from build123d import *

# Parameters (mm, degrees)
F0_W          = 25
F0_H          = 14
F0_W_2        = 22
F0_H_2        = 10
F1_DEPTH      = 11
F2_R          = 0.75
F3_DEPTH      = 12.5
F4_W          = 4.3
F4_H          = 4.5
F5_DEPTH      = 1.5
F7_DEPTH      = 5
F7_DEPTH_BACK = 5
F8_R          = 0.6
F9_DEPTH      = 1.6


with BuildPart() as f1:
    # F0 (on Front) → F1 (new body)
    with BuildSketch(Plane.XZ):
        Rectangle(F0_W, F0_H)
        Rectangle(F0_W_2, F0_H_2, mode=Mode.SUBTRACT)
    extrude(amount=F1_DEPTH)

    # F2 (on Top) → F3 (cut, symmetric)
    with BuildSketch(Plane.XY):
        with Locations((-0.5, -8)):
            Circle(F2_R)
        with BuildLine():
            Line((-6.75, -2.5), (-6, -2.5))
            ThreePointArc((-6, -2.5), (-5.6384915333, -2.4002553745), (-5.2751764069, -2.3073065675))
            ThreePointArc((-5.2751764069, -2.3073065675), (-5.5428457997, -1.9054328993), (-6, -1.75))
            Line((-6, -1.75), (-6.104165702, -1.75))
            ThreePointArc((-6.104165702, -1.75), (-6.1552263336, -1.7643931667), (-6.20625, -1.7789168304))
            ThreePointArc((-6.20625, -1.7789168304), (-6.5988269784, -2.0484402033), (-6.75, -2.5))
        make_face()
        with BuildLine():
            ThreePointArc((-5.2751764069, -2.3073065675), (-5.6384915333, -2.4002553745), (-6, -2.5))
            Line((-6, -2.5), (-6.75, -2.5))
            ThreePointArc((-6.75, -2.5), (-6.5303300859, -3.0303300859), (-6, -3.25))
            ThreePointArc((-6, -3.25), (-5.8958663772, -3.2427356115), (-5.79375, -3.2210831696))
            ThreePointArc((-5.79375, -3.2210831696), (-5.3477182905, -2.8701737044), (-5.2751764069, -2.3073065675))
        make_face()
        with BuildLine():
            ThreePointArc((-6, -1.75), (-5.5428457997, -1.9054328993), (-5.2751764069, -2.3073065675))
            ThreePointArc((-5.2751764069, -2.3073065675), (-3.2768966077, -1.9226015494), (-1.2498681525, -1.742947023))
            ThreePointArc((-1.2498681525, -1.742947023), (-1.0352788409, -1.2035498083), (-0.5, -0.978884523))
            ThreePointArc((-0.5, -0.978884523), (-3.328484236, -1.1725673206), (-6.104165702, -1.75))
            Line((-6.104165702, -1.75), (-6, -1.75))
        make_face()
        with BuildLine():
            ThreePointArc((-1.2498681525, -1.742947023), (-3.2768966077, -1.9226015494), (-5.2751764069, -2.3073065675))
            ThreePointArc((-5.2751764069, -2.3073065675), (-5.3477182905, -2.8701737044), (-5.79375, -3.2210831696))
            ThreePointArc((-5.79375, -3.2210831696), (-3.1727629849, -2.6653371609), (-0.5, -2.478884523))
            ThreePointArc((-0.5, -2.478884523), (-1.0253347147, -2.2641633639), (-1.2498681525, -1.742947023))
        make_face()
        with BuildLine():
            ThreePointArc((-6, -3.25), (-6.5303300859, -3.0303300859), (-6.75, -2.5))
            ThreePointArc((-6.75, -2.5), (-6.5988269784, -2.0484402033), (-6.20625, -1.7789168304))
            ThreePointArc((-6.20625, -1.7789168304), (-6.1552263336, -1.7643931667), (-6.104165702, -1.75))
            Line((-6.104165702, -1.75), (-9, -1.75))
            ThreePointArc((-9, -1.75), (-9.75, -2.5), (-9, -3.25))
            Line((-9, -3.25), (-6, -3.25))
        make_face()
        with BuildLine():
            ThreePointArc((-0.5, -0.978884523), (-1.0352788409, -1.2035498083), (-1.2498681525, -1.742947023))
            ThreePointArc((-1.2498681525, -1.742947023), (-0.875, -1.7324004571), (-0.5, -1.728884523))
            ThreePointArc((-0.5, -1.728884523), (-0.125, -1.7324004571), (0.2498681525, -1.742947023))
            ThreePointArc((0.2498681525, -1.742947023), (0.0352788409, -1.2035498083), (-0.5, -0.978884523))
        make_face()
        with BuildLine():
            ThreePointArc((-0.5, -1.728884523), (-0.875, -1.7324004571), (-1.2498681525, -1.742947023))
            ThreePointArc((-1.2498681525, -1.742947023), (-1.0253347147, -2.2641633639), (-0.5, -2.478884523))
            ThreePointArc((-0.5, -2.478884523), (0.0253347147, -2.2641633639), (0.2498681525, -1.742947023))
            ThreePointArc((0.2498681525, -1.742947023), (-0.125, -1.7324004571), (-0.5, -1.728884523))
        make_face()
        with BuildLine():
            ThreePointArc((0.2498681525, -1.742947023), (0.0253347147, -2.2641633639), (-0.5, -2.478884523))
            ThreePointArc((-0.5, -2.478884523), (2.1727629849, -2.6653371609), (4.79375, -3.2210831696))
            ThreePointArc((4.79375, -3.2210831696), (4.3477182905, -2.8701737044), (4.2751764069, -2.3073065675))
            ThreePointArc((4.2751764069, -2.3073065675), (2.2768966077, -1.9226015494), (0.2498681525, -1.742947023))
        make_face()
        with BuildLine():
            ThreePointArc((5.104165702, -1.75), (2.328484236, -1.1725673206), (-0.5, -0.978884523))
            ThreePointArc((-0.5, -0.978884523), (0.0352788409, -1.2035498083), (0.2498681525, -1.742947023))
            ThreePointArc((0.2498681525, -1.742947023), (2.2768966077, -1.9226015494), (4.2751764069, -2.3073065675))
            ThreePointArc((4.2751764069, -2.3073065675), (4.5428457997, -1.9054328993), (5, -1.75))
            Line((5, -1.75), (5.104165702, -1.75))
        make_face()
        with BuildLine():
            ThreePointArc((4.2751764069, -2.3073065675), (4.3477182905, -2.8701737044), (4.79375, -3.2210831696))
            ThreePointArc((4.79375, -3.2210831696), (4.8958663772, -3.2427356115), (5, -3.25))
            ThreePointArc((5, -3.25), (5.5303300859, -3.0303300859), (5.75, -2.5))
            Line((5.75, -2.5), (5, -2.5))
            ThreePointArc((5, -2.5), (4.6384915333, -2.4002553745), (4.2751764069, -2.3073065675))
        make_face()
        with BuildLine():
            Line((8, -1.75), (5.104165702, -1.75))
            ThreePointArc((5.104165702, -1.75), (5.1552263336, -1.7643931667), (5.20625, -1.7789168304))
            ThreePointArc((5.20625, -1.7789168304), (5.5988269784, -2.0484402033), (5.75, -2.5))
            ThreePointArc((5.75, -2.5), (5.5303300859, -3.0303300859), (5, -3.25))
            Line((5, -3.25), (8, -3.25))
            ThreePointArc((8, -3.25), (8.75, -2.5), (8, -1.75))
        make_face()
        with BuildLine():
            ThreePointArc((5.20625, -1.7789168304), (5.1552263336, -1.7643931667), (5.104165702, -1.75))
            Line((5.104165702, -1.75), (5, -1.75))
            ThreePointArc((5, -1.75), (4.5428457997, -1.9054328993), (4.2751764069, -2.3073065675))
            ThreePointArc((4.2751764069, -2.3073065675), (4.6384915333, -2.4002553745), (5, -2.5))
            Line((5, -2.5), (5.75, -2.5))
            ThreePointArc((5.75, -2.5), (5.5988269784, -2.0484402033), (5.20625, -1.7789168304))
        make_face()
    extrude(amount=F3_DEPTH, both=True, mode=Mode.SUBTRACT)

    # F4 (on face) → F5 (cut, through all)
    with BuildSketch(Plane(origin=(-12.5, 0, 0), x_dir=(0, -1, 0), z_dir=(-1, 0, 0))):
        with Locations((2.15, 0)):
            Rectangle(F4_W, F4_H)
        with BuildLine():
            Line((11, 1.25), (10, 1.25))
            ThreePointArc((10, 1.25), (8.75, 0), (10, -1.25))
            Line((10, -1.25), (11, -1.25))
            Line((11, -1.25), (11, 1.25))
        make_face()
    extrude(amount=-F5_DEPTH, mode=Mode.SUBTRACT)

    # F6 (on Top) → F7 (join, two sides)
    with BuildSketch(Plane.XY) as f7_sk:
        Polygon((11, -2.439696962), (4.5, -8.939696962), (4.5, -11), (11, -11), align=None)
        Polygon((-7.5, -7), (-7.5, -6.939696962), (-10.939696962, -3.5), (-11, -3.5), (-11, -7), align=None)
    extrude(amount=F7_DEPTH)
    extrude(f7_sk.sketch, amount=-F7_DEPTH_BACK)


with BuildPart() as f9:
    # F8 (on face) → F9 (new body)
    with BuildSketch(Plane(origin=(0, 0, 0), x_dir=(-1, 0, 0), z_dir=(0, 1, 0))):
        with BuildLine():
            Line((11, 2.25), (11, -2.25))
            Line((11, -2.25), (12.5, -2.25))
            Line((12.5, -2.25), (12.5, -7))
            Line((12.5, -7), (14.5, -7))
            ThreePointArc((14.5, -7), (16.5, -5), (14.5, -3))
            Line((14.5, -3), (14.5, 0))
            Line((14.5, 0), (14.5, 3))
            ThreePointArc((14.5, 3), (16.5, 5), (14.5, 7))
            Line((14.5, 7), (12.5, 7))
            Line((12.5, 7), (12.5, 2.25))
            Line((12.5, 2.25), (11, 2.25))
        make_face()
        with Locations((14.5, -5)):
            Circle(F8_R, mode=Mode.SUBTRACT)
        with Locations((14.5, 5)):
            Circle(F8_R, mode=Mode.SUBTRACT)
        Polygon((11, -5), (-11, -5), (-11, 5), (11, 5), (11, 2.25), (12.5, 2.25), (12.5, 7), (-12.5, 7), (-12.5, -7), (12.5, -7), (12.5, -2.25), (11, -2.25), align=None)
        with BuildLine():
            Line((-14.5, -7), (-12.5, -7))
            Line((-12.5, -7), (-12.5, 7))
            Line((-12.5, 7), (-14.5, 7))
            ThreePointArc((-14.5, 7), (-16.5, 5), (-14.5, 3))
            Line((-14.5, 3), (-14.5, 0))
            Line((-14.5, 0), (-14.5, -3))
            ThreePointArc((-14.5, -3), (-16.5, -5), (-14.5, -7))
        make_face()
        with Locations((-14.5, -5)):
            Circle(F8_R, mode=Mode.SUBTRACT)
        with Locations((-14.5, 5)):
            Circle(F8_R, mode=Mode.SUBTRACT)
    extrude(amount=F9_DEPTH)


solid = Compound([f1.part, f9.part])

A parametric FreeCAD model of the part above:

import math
import FreeCAD as App
import Part
import Sketcher

V = App.Vector


def add_polygon(sketch, points):
    """Adds a closed chain of lines whose ends are joined by coincident constraints."""
    first, n = sketch.GeometryCount, len(points)
    for a, b in zip(points, points[1:] + points[:1]):
        sketch.addGeometry(Part.LineSegment(App.Vector(*a, 0), App.Vector(*b, 0)), False)
    for i in range(n):
        sketch.addConstraint(Sketcher.Constraint("Coincident", first + i, 2, first + (i + 1) % n, 1))

doc = App.newDocument("Part")
body = doc.addObject("PartDesign::Body", "Body")

# Sketch on XZ plane
sketch1 = body.newObject("Sketcher::SketchObject", "Sketch")
sketch1.AttachmentSupport = (doc.getObject("XZ_Plane"), [""])
sketch1.MapMode = "FlatFace"
add_polygon(sketch1, [(-12.5, 7), (-12.5, -7), (12.5, -7), (12.5, 7)])  # lines 0-3
add_polygon(sketch1, [(11, -5), (-11, -5), (-11, 5), (11, 5)])  # lines 4-7
sketch1.addConstraint([
    Sketcher.Constraint("Vertical", 0),
    Sketcher.Constraint("Horizontal", 1),
    Sketcher.Constraint("Vertical", 2),
    Sketcher.Constraint("Horizontal", 3),
    Sketcher.Constraint("Horizontal", 4),
    Sketcher.Constraint("Vertical", 5),
    Sketcher.Constraint("Horizontal", 6),
    Sketcher.Constraint("Vertical", 7),
    Sketcher.Constraint("Symmetric", 0, 2, 2, 2, -1, 1),
    Sketcher.Constraint("Symmetric", 4, 2, 6, 2, -1, 1),
    Sketcher.Constraint("DistanceX", 1, 1, 1, 2, 25.0),
    Sketcher.Constraint("DistanceX", 4, 2, 4, 1, 22.0),
    Sketcher.Constraint("DistanceY", 0, 2, 0, 1, 14.0),
    Sketcher.Constraint("DistanceY", 5, 1, 5, 2, 10.0),
])
pad1 = body.newObject("PartDesign::Pad", "Pad")
pad1.Profile = sketch1
pad1.Length = 11

# Sketch on XY plane
sketch2 = body.newObject("Sketcher::SketchObject", "Sketch001")
sketch2.AttachmentSupport = (doc.getObject("XY_Plane"), [""])
sketch2.MapMode = "FlatFace"
sketch2.addGeometry([
    Part.Circle(V(-0.5, -8, 0), V(0, 0, 1), 0.75),  # 0
    Part.LineSegment(V(8, -1.75, 0), V(5.104166, -1.75, 0)),  # 1
    Part.ArcOfCircle(Part.Circle(V(-0.5, -21.728885, 0), V(0, 0, 1), 20.75), math.radians(74.330956), math.radians(90)),  # 2
    Part.ArcOfCircle(Part.Circle(V(-0.5, -21.728885, 0), V(0, 0, 1), 20.75), math.radians(90), math.radians(105.669044)),  # 3
    Part.LineSegment(V(-6.104166, -1.75, 0), V(-9, -1.75, 0)),  # 4
    Part.ArcOfCircle(Part.Circle(V(-9, -2.5, 0), V(0, 0, 1), 0.75), math.radians(90), math.radians(270)),  # 5
    Part.LineSegment(V(-9, -3.25, 0), V(-6, -3.25, 0)),  # 6
    Part.ArcOfCircle(Part.Circle(V(-6, -2.5, 0), V(0, 0, 1), 0.75), math.radians(-90), math.radians(-74.037986)),  # 7
    Part.ArcOfCircle(Part.Circle(V(-0.5, -21.728885, 0), V(0, 0, 1), 19.25), math.radians(90), math.radians(105.962014)),  # 8
    Part.ArcOfCircle(Part.Circle(V(-0.5, -21.728885, 0), V(0, 0, 1), 19.25), math.radians(74.037986), math.radians(90)),  # 9
    Part.ArcOfCircle(Part.Circle(V(5, -2.5, 0), V(0, 0, 1), 0.75), math.radians(-105.962014), math.radians(-90)),  # 10
    Part.LineSegment(V(5, -3.25, 0), V(8, -3.25, 0)),  # 11
    Part.ArcOfCircle(Part.Circle(V(8, -2.5, 0), V(0, 0, 1), 0.75), math.radians(-90), math.radians(90)),  # 12
], False)
sketch2.addConstraint([
    Sketcher.Constraint("Coincident", 1, 2, 2, 1),
    Sketcher.Constraint("Tangent", 2, 2, 3, 1),
    Sketcher.Constraint("Coincident", 3, 2, 4, 1),
    Sketcher.Constraint("Tangent", 4, 2, 5, 1),
    Sketcher.Constraint("Tangent", 5, 2, 6, 1),
    Sketcher.Constraint("Tangent", 6, 2, 7, 1),
    Sketcher.Constraint("Tangent", 7, 2, 8, 2),
    Sketcher.Constraint("Tangent", 8, 1, 9, 2),
    Sketcher.Constraint("Tangent", 9, 1, 10, 1),
    Sketcher.Constraint("Tangent", 10, 2, 11, 1),
    Sketcher.Constraint("Tangent", 11, 2, 12, 1),
    Sketcher.Constraint("Tangent", 12, 2, 1, 1),
    Sketcher.Constraint("Horizontal", 1),
    Sketcher.Constraint("Horizontal", 4),
    Sketcher.Constraint("Horizontal", 6),
    Sketcher.Constraint("Horizontal", 11),
    Sketcher.Constraint("Coincident", 8, 3, 2, 3),
    Sketcher.Constraint("Equal", 2, 3),
    Sketcher.Constraint("Equal", 0, 5),
    Sketcher.Constraint("Equal", 5, 7),
    Sketcher.Constraint("Equal", 8, 9),
    Sketcher.Constraint("Equal", 7, 10),
    Sketcher.Constraint("Equal", 10, 12),
    Sketcher.Constraint("Horizontal", 7, 3, 10, 3),
    Sketcher.Constraint("Vertical", 0, 3, 2, 3),
    Sketcher.Constraint("Vertical", 9, 3, 2, 2),
    Sketcher.Constraint("Vertical", 2, 2, 8, 1),
    Sketcher.Constraint("Equal", 1, 4),
    Sketcher.Constraint("Diameter", 0, 1.5),
    Sketcher.Constraint("DistanceX", 6, 1, 6, 2, 3.0),
    Sketcher.Constraint("Radius", 2, 20.75),
    Sketcher.Constraint("Radius", 8, 19.25),
    Sketcher.Constraint("DistanceY", 0, 3, -1, 1, 8.0),
    Sketcher.Constraint("DistanceX", 5, 3, -1, 1, 9.0),
    Sketcher.Constraint("DistanceX", -1, 1, 10, 3, 5.0),
    Sketcher.Constraint("DistanceY", 5, 3, -1, 1, 2.5),
])
pocket1 = body.newObject("PartDesign::Pocket", "Pocket")
pocket1.Profile = sketch2
pocket1.Length = 25
pocket1.Midplane = True

# Sketch on YZ plane
sketch3 = body.newObject("Sketcher::SketchObject", "Sketch002")
sketch3.AttachmentSupport = (doc.getObject("YZ_Plane"), [""])
sketch3.MapMode = "FlatFace"
sketch3.AttachmentOffset = App.Placement(V(0, 0, -12.5), App.Rotation())
add_polygon(sketch3, [(0, 2.25), (0, -2.25), (-4.3, -2.25), (-4.3, 2.25)])  # lines 0-3
sketch3.addGeometry(Part.LineSegment(V(-11, 1.25, 0), V(-10, 1.25, 0)), False)  # 4
sketch3.addGeometry(Part.ArcOfCircle(Part.Circle(V(-10, 0, 0), V(0, 0, 1), 1.25), math.radians(-90), math.radians(90)), False)  # 5
sketch3.addGeometry(Part.LineSegment(V(-10, -1.25, 0), V(-11, -1.25, 0)), False)  # 6
sketch3.addGeometry(Part.LineSegment(V(-11, -1.25, 0), V(-11, 1.25, 0)), False)  # 7
sketch3.addConstraint([
    Sketcher.Constraint("Tangent", 4, 2, 5, 2),
    Sketcher.Constraint("Tangent", 5, 1, 6, 1),
    Sketcher.Constraint("Coincident", 6, 2, 7, 1),
    Sketcher.Constraint("Coincident", 7, 2, 4, 1),
    Sketcher.Constraint("Vertical", 0),
    Sketcher.Constraint("Horizontal", 1),
    Sketcher.Constraint("Vertical", 2),
    Sketcher.Constraint("Horizontal", 3),
    Sketcher.Constraint("Horizontal", 4),
    Sketcher.Constraint("Horizontal", 6),
    Sketcher.Constraint("Vertical", 7),
    Sketcher.Constraint("Symmetric", 0, 2, 3, 2, -1, 1),
    Sketcher.Constraint("PointOnObject", 5, 3, -1),
    Sketcher.Constraint("DistanceX", 4, 1, 4, 2, 1.0),
    Sketcher.Constraint("Radius", 5, 1.25),
    Sketcher.Constraint("DistanceX", 1, 2, 1, 1, 4.3),
    Sketcher.Constraint("DistanceY", 0, 2, 0, 1, 4.5),
    Sketcher.Constraint("DistanceX", 5, 3, -1, 1, 10.0),
])
pocket2 = body.newObject("PartDesign::Pocket", "Pocket001")
pocket2.Profile = sketch3
pocket2.Length = 1.5
pocket2.Reversed = True

# Sketch on XY plane
sketch4 = body.newObject("Sketcher::SketchObject", "Sketch003")
sketch4.AttachmentSupport = (doc.getObject("XY_Plane"), [""])
sketch4.MapMode = "FlatFace"
add_polygon(sketch4, [(11, -2.439697), (4.5, -8.939697), (4.5, -11), (11, -11)])  # lines 0-3
add_polygon(sketch4, [(-7.5, -7), (-7.5, -6.939697), (-10.939697, -3.5), (-11, -3.5), (-11, -7)])  # lines 4-8
sketch4.addConstraint([
    Sketcher.Constraint("Vertical", 1),
    Sketcher.Constraint("Horizontal", 2),
    Sketcher.Constraint("Vertical", 3),
    Sketcher.Constraint("Vertical", 4),
    Sketcher.Constraint("Horizontal", 6),
    Sketcher.Constraint("Vertical", 7),
    Sketcher.Constraint("Horizontal", 8),
    Sketcher.Constraint("Perpendicular", 0, 5),
    Sketcher.Constraint("Equal", 6, 4),
    Sketcher.Constraint("Equal", 8, 7),
    Sketcher.Constraint("DistanceX", 2, 1, 2, 2, 6.5),
    Sketcher.Constraint("DistanceX", 8, 1, 8, 2, 3.5),
    Sketcher.Constraint("DistanceY", 1, 2, -1, 1, 11.0),
    Sketcher.Constraint("DistanceX", -1, 1, 2, 2, 11.0),
    Sketcher.Constraint("DistanceX", 6, 2, -1, 1, 11.0),
    Sketcher.Constraint("DistanceY", 7, 2, -1, 1, 7.0),
    Sketcher.Constraint("DistanceY", 0, 2, 4, 2, 2.0),
    Sketcher.Constraint("DistanceX", 6, 2, 6, 1, 0.060303),
])
pad2 = body.newObject("PartDesign::Pad", "Pad001")
pad2.Profile = sketch4
pad2.Type = "TwoLengths"
pad2.Length = 5
pad2.Length2 = 5
body2 = doc.addObject("PartDesign::Body", "Body001")

# Sketch on XZ plane
sketch5 = body2.newObject("Sketcher::SketchObject", "Sketch004")
sketch5.AttachmentSupport = (doc.getObject("XZ_Plane001"), [""])
sketch5.MapMode = "FlatFace"
sketch5.addGeometry(Part.LineSegment(V(-14.5, 7, 0), V(14.5, 7, 0)), False)  # 0
sketch5.addGeometry(Part.ArcOfCircle(Part.Circle(V(14.5, 5, 0), V(0, 0, 1), 2), math.radians(-90), math.radians(90)), False)  # 1
sketch5.addGeometry(Part.LineSegment(V(14.5, 3, 0), V(14.5, -3, 0)), False)  # 2
sketch5.addGeometry(Part.ArcOfCircle(Part.Circle(V(14.5, -5, 0), V(0, 0, 1), 2), math.radians(-90), math.radians(90)), False)  # 3
sketch5.addGeometry(Part.LineSegment(V(14.5, -7, 0), V(-14.5, -7, 0)), False)  # 4
sketch5.addGeometry(Part.ArcOfCircle(Part.Circle(V(-14.5, -5, 0), V(0, 0, 1), 2), math.radians(90), math.radians(270)), False)  # 5
sketch5.addGeometry(Part.LineSegment(V(-14.5, -3, 0), V(-14.5, 3, 0)), False)  # 6
sketch5.addGeometry(Part.ArcOfCircle(Part.Circle(V(-14.5, 5, 0), V(0, 0, 1), 2), math.radians(90), math.radians(270)), False)  # 7
sketch5.addGeometry(Part.Circle(V(14.5, -5, 0), V(0, 0, 1), 0.6), False)  # 8
sketch5.addGeometry(Part.Circle(V(-14.5, -5, 0), V(0, 0, 1), 0.6), False)  # 9
sketch5.addGeometry(Part.Circle(V(14.5, 5, 0), V(0, 0, 1), 0.6), False)  # 10
add_polygon(sketch5, [(-11, -5), (11, -5), (11, 5), (-11, 5)])  # lines 11-14
sketch5.addGeometry(Part.Circle(V(-14.5, 5, 0), V(0, 0, 1), 0.6), False)  # 15
sketch5.addConstraint([
    Sketcher.Constraint("Tangent", 0, 2, 1, 2),
    Sketcher.Constraint("Coincident", 1, 1, 2, 1),
    Sketcher.Constraint("Coincident", 2, 2, 3, 2),
    Sketcher.Constraint("Tangent", 3, 1, 4, 1),
    Sketcher.Constraint("Tangent", 4, 2, 5, 2),
    Sketcher.Constraint("Coincident", 5, 1, 6, 1),
    Sketcher.Constraint("Coincident", 6, 2, 7, 2),
    Sketcher.Constraint("Tangent", 7, 1, 0, 1),
    Sketcher.Constraint("Horizontal", 0),
    Sketcher.Constraint("Vertical", 2),
    Sketcher.Constraint("Horizontal", 4),
    Sketcher.Constraint("Vertical", 6),
    Sketcher.Constraint("Horizontal", 11),
    Sketcher.Constraint("Vertical", 12),
    Sketcher.Constraint("Horizontal", 13),
    Sketcher.Constraint("Vertical", 14),
    Sketcher.Constraint("Coincident", 8, 3, 3, 3),
    Sketcher.Constraint("Coincident", 9, 3, 5, 3),
    Sketcher.Constraint("Coincident", 10, 3, 1, 3),
    Sketcher.Constraint("Coincident", 15, 3, 7, 3),
    Sketcher.Constraint("Equal", 1, 3),
    Sketcher.Constraint("Equal", 3, 5),
    Sketcher.Constraint("Equal", 5, 7),
    Sketcher.Constraint("Equal", 8, 9),
    Sketcher.Constraint("Equal", 9, 10),
    Sketcher.Constraint("Equal", 10, 15),
    Sketcher.Constraint("Symmetric", 1, 3, 5, 3, -1, 1),
    Sketcher.Constraint("Symmetric", 11, 2, 13, 2, -1, 1),
    Sketcher.Constraint("Horizontal", 9, 3, 11, 2),
    Sketcher.Constraint("Vertical", 1, 3, 3, 3),
    Sketcher.Constraint("Vertical", 5, 3, 7, 3),
    Sketcher.Constraint("Vertical", 0, 2, 1, 1),
    Sketcher.Constraint("Vertical", 4, 2, 5, 1),
    Sketcher.Constraint("Radius", 1, 2.0),
    Sketcher.Constraint("Diameter", 8, 1.2),
    Sketcher.Constraint("DistanceX", 0, 1, 0, 2, 29.0),
    Sketcher.Constraint("DistanceX", 11, 1, 11, 2, 22.0),
    Sketcher.Constraint("DistanceY", 2, 2, 2, 1, 6.0),
])
pad3 = body2.newObject("PartDesign::Pad", "Pad002")
pad3.Profile = sketch5
pad3.Length = 1.6
pad3.Reversed = True

doc.recompute()
